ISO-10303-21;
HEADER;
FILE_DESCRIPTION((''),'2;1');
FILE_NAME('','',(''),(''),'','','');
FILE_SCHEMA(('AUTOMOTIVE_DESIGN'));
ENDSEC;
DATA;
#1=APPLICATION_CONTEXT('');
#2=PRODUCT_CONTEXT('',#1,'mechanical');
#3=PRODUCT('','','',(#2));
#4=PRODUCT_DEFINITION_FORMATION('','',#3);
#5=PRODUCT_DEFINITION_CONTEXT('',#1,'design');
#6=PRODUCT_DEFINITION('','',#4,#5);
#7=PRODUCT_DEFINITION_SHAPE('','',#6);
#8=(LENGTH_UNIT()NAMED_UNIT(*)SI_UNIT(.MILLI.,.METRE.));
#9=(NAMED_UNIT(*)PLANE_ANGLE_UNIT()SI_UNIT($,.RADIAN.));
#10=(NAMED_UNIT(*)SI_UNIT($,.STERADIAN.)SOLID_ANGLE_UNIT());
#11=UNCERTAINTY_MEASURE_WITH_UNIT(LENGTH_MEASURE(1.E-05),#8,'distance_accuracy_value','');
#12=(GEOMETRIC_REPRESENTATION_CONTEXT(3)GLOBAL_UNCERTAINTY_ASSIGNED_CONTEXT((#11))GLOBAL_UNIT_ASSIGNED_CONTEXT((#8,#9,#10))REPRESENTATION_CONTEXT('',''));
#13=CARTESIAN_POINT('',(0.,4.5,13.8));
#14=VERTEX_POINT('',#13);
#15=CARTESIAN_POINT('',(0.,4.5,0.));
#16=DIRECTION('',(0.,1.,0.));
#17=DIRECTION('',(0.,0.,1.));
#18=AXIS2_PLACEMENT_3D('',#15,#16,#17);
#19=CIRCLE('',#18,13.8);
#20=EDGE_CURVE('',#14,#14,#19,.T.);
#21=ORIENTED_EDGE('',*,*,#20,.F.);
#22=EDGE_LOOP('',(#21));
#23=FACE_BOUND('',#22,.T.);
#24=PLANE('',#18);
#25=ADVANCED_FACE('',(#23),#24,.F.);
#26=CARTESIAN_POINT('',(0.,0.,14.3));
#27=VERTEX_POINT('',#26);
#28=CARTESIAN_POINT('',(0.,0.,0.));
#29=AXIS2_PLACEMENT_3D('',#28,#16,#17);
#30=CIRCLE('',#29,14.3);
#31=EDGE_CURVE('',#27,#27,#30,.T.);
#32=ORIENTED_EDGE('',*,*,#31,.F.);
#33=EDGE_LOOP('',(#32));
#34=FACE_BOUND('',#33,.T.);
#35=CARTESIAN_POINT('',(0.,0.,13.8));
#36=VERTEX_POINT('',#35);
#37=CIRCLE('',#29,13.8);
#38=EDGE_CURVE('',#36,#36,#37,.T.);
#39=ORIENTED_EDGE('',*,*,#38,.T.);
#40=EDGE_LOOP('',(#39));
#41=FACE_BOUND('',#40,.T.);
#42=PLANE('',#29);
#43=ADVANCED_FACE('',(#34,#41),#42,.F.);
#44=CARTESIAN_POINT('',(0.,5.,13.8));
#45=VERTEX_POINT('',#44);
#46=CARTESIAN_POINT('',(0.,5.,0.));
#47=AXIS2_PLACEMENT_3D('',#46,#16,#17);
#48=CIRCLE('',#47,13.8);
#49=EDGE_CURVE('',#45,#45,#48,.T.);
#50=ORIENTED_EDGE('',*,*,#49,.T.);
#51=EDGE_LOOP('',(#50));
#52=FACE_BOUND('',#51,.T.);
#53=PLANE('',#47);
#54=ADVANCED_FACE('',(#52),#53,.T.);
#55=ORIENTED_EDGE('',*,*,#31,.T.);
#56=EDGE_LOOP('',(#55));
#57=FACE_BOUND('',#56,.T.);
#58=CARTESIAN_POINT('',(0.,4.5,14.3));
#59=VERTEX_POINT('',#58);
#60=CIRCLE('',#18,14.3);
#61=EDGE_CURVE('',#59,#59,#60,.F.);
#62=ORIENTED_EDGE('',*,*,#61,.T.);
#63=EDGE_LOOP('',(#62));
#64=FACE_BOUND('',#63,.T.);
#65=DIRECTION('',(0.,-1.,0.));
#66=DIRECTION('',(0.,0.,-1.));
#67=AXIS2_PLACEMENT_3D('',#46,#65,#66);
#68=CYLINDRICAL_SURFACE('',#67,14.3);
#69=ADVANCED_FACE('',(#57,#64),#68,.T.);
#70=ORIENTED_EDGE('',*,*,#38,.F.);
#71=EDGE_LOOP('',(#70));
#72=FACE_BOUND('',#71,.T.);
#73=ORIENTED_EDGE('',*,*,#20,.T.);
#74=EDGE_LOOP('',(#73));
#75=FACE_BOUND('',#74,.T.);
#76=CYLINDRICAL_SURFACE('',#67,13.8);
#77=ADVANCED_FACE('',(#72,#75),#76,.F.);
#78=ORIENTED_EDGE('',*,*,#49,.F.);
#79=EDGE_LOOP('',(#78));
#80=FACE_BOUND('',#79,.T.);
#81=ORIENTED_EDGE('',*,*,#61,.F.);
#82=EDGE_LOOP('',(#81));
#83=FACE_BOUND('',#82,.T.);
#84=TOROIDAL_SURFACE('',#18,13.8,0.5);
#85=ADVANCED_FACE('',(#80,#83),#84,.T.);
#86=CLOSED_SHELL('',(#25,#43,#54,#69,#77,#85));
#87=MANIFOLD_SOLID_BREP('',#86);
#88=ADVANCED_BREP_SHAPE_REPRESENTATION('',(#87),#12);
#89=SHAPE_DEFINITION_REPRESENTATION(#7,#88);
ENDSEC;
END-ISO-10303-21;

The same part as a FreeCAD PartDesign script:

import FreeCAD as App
import Part
import Sketcher
from FreeCAD import Vector


def edges_at(feature, points):
    """Names of the edges that pass closest to the given points."""
    edges = feature.Shape.Edges
    near = lambda p: min(range(len(edges)), key=lambda i: edges[i].distToShape(Part.Vertex(*p))[0])
    return sorted({f"Edge{near(p) + 1}" for p in points})


def faces_at(feature, points):
    """Names of the faces that lie closest to the given points."""
    faces = feature.Shape.Faces
    near = lambda p: min(range(len(faces)), key=lambda i: faces[i].distToShape(Part.Vertex(*p))[0])
    return sorted({f"Face{near(p) + 1}" for p in points})

doc = App.newDocument("Part")
params = doc.addObject("Spreadsheet::Sheet", "Params")
for row, (alias, value) in enumerate([
    ("sketch1_diameter", "28.6 mm"),
    ("pad1_length", "5 mm"),
    ("thickness_wall", "0.5 mm"),
    ("fillet_radius", "0.5 mm"),
], start=1):
    params.set(f"A{row}", alias)
    params.set(f"B{row}", "=" + value)
    params.setAlias(f"B{row}", alias)

body = doc.addObject("PartDesign::Body", "Body")

# Sketch on XZ plane
sketch1 = body.newObject("Sketcher::SketchObject", "Sketch")
sketch1.AttachmentSupport = (doc.getObject("XZ_Plane"), [""])
sketch1.MapMode = "FlatFace"
sketch1.addGeometry(Part.Circle(Vector(0, 0, 0), Vector(0, 0, 1), 14.3), False)
sketch1.addConstraint([
    Sketcher.Constraint("Coincident", 0, 3, -1, 1),
    Sketcher.Constraint("Diameter", 0, 28.6),
])
sketch1.setExpression("Constraints[1]", "Params.sketch1_diameter")
pad1 = body.newObject("PartDesign::Pad", "Pad")
pad1.Profile = sketch1
pad1.setExpression("Length", "Params.pad1_length")
pad1.Reversed = True
doc.recompute()

thickness = body.newObject("PartDesign::Thickness", "Thickness")
thickness.Base = (pad1, faces_at(pad1, [(0, 0, 0)]))
thickness.setExpression("Value", "Params.thickness_wall")
thickness.Reversed = True
thickness.Join = "Intersection"
doc.recompute()

fillet = body.newObject("PartDesign::Fillet", "Fillet")
fillet.Base = (thickness, edges_at(thickness, [(0, 5, -14.3)]))
fillet.setExpression("Radius", "Params.fillet_radius")

doc.recompute()
